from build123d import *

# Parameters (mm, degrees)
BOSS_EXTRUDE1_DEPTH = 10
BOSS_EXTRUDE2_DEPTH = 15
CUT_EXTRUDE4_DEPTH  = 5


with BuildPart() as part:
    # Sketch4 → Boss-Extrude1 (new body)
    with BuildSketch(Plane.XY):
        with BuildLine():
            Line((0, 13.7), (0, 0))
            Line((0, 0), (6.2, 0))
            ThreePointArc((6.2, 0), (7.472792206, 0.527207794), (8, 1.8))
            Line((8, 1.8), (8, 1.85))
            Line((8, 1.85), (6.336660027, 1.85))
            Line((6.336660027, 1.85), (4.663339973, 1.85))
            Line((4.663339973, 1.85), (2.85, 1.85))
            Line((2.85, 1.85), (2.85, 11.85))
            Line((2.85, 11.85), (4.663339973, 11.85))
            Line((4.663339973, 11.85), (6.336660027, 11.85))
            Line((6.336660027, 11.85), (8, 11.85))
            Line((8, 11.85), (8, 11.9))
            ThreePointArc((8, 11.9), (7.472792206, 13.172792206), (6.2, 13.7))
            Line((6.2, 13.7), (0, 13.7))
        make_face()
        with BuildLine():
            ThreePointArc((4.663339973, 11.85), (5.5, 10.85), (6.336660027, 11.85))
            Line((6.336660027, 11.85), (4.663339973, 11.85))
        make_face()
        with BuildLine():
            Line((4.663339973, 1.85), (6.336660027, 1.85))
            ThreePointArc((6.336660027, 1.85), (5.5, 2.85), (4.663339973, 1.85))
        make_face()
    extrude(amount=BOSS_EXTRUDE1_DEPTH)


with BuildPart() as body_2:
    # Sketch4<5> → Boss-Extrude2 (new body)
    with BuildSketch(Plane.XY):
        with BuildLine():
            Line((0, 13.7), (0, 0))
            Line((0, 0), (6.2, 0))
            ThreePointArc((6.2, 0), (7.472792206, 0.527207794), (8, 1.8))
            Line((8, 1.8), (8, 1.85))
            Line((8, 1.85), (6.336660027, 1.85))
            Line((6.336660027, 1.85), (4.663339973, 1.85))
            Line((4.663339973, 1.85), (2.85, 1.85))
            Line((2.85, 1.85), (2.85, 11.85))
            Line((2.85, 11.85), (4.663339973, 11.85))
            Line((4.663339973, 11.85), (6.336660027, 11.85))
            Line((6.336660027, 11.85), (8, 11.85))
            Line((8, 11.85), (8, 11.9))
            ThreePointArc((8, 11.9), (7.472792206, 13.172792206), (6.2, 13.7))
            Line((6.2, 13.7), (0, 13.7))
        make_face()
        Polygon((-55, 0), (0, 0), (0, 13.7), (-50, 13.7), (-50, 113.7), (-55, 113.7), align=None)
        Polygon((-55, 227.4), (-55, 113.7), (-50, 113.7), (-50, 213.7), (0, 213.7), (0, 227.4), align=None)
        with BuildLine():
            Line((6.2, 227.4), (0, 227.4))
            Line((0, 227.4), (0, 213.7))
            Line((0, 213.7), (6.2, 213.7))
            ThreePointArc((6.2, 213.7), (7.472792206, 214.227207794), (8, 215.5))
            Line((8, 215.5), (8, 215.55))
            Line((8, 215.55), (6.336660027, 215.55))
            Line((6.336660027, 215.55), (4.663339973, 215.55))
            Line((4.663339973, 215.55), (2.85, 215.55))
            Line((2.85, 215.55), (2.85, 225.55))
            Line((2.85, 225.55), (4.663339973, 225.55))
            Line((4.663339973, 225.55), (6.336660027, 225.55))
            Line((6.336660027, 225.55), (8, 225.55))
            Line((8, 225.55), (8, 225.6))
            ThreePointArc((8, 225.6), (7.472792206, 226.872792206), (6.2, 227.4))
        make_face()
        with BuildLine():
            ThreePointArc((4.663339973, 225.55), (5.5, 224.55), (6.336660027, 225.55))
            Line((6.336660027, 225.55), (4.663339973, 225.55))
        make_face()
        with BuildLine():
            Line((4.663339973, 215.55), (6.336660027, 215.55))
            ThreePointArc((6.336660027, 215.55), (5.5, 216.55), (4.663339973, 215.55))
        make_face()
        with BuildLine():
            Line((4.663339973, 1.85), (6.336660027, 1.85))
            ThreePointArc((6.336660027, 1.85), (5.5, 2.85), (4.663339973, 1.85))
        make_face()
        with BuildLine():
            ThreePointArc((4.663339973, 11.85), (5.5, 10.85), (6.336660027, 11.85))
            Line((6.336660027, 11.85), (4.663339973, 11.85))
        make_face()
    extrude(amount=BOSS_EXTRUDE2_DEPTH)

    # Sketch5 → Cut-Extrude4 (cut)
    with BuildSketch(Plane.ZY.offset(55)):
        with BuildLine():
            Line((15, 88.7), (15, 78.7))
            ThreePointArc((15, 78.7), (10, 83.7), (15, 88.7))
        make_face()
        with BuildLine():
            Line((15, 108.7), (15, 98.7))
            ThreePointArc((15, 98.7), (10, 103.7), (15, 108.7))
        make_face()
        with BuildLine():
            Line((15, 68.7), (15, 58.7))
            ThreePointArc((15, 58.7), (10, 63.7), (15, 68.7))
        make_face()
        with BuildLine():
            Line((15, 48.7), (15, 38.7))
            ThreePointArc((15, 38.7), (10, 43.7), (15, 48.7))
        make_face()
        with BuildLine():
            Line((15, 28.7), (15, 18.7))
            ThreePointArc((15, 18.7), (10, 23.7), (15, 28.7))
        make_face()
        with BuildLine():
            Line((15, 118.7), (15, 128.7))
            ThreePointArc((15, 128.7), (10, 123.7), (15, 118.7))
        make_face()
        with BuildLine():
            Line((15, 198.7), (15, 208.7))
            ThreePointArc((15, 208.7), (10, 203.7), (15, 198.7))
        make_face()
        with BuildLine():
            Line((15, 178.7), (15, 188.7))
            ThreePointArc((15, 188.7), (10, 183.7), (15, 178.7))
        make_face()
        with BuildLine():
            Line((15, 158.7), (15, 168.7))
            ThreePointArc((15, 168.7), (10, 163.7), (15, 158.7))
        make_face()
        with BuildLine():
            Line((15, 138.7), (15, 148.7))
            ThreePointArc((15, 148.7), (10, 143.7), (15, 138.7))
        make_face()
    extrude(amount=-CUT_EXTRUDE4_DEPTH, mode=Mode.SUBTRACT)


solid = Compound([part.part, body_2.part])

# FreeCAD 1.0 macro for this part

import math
import FreeCAD as App
import Part
import Sketcher
from FreeCAD import Vector

doc = App.newDocument("Part")
body = doc.addObject("PartDesign::Body", "Body")

sketch1 = doc.addObject("Sketcher::SketchObject", "Sketch")
body.addObject(sketch1)
sketch1.AttachmentSupport = (doc.XY_Plane, [""])
sketch1.MapMode = "FlatFace"
sketch1.addGeometry([
    Part.LineSegment(Vector(0, 13.7, 0), Vector(0, 0, 0)),
    Part.LineSegment(Vector(0, 0, 0), Vector(6.2, 0, 0)),
    Part.ArcOfCircle(Part.Circle(Vector(6.2, 1.8, 0), Vector(0, 0, 1), 1.8), math.radians(-90), math.radians(0)),
    Part.LineSegment(Vector(8, 1.8, 0), Vector(8, 1.85, 0)),
    Part.LineSegment(Vector(8, 1.85, 0), Vector(6.34, 1.85, 0)),
    Part.ArcOfCircle(Part.Circle(Vector(5.5, 2, 0), Vector(0, 0, 1), 0.85), math.radians(-10), math.radians(190)),
    Part.LineSegment(Vector(4.66, 1.85, 0), Vector(2.85, 1.85, 0)),
    Part.LineSegment(Vector(2.85, 1.85, 0), Vector(2.85, 11.85, 0)),
    Part.LineSegment(Vector(2.85, 11.85, 0), Vector(4.66, 11.85, 0)),
    Part.ArcOfCircle(Part.Circle(Vector(5.5, 11.7, 0), Vector(0, 0, 1), 0.85), math.radians(170), math.radians(370)),
    Part.LineSegment(Vector(6.34, 11.85, 0), Vector(8, 11.85, 0)),
    Part.LineSegment(Vector(8, 11.85, 0), Vector(8, 11.9, 0)),
    Part.ArcOfCircle(Part.Circle(Vector(6.2, 11.9, 0), Vector(0, 0, 1), 1.8), math.radians(0), math.radians(90)),
    Part.LineSegment(Vector(6.2, 13.7, 0), Vector(0, 13.7, 0)),
], False)
sketch1.addConstraint([
    Sketcher.Constraint("Coincident", 0, 2, 1, 1),
    Sketcher.Constraint("Tangent", 1, 2, 2, 1),
    Sketcher.Constraint("Tangent", 2, 2, 3, 1),
    Sketcher.Constraint("Coincident", 3, 2, 4, 1),
    Sketcher.Constraint("Coincident", 4, 2, 5, 1),
    Sketcher.Constraint("Coincident", 5, 2, 6, 1),
    Sketcher.Constraint("Coincident", 6, 2, 7, 1),
    Sketcher.Constraint("Coincident", 7, 2, 8, 1),
    Sketcher.Constraint("Coincident", 8, 2, 9, 1),
    Sketcher.Constraint("Coincident", 9, 2, 10, 1),
    Sketcher.Constraint("Coincident", 10, 2, 11, 1),
    Sketcher.Constraint("Tangent", 11, 2, 12, 1),
    Sketcher.Constraint("Tangent", 12, 2, 13, 1),
    Sketcher.Constraint("Coincident", 13, 2, 0, 1),
    Sketcher.Constraint("Vertical", 0),
    Sketcher.Constraint("Horizontal", 1),
    Sketcher.Constraint("Vertical", 3),
    Sketcher.Constraint("Horizontal", 4),
    Sketcher.Constraint("Horizontal", 6),
    Sketcher.Constraint("Vertical", 7),
    Sketcher.Constraint("Horizontal", 8),
    Sketcher.Constraint("Horizontal", 10),
    Sketcher.Constraint("Vertical", 11),
    Sketcher.Constraint("Horizontal", 13),
    Sketcher.Constraint("Coincident", 0, 2, -1, 1),
    Sketcher.Constraint("Equal", 5, 9),
    Sketcher.Constraint("Equal", 2, 12),
    Sketcher.Constraint("Horizontal", 4, 2, 5, 2),
    Sketcher.Constraint("Horizontal", 8, 2, 9, 2),
    Sketcher.Constraint("Vertical", 5, 3, 9, 3),
    Sketcher.Constraint("Vertical", 2, 3, 12, 3),
    Sketcher.Constraint("Vertical", 5, 2, 8, 2),
    Sketcher.Constraint("Equal", 3, 11),
    Sketcher.Constraint("Radius", 2, 1.8),
    Sketcher.Constraint("DistanceY", 7, 1, 7, 2, 10.0),
    Sketcher.Constraint("Radius", 5, 0.85),
    Sketcher.Constraint("DistanceX", 1, 1, 1, 2, 6.2),
    Sketcher.Constraint("DistanceY", 0, 2, 0, 1, 13.7),
    Sketcher.Constraint("DistanceY", -1, 1, 5, 3, 2.0),
    Sketcher.Constraint("DistanceX", -1, 1, 5, 3, 5.5),
    Sketcher.Constraint("DistanceX", -1, 1, 6, 2, 2.85),
])
pad1 = doc.addObject("PartDesign::Pad", "Pad")
body.addObject(pad1)
pad1.Profile = sketch1
pad1.Length = 10
body2 = doc.addObject("PartDesign::Body", "Body001")

sketch2 = doc.addObject("Sketcher::SketchObject", "Sketch001")
body2.addObject(sketch2)
sketch2.AttachmentSupport = (doc.getObject("XY_Plane001"), [""])
sketch2.MapMode = "FlatFace"
sketch2.addGeometry([
    Part.ArcOfCircle(Part.Circle(Vector(6.2, 1.8, 0), Vector(0, 0, 1), 1.8), math.radians(-90), math.radians(0)),
    Part.LineSegment(Vector(8, 1.8, 0), Vector(8, 1.85, 0)),
    Part.LineSegment(Vector(8, 1.85, 0), Vector(6.337, 1.85, 0)),
    Part.ArcOfCircle(Part.Circle(Vector(5.5, 2, 0), Vector(0, 0, 1), 0.85), math.radians(-10), math.radians(190)),
    Part.LineSegment(Vector(4.663, 1.85, 0), Vector(2.85, 1.85, 0)),
    Part.LineSegment(Vector(2.85, 1.85, 0), Vector(2.85, 11.85, 0)),
    Part.LineSegment(Vector(2.85, 11.85, 0), Vector(4.663, 11.85, 0)),
    Part.ArcOfCircle(Part.Circle(Vector(5.5, 11.7, 0), Vector(0, 0, 1), 0.85), math.radians(170), math.radians(370)),
    Part.LineSegment(Vector(6.337, 11.85, 0), Vector(8, 11.85, 0)),
    Part.LineSegment(Vector(8, 11.85, 0), Vector(8, 11.9, 0)),
    Part.ArcOfCircle(Part.Circle(Vector(6.2, 11.9, 0), Vector(0, 0, 1), 1.8), math.radians(0), math.radians(90)),
    Part.LineSegment(Vector(6.2, 13.7, 0), Vector(-50, 13.7, 0)),
    Part.LineSegment(Vector(-50, 13.7, 0), Vector(-50, 213.7, 0)),
    Part.LineSegment(Vector(-50, 213.7, 0), Vector(6.2, 213.7, 0)),
    Part.ArcOfCircle(Part.Circle(Vector(6.2, 215.5, 0), Vector(0, 0, 1), 1.8), math.radians(-90), math.radians(0)),
    Part.LineSegment(Vector(8, 215.5, 0), Vector(8, 215.55, 0)),
    Part.LineSegment(Vector(8, 215.55, 0), Vector(6.337, 215.55, 0)),
    Part.ArcOfCircle(Part.Circle(Vector(5.5, 215.7, 0), Vector(0, 0, 1), 0.85), math.radians(-10), math.radians(190)),
    Part.LineSegment(Vector(4.663, 215.55, 0), Vector(2.85, 215.55, 0)),
    Part.LineSegment(Vector(2.85, 215.55, 0), Vector(2.85, 225.55, 0)),
    Part.LineSegment(Vector(2.85, 225.55, 0), Vector(4.663, 225.55, 0)),
    Part.ArcOfCircle(Part.Circle(Vector(5.5, 225.4, 0), Vector(0, 0, 1), 0.85), math.radians(170), math.radians(370)),
    Part.LineSegment(Vector(6.337, 225.55, 0), Vector(8, 225.55, 0)),
    Part.LineSegment(Vector(8, 225.55, 0), Vector(8, 225.6, 0)),
    Part.ArcOfCircle(Part.Circle(Vector(6.2, 225.6, 0), Vector(0, 0, 1), 1.8), math.radians(0), math.radians(90)),
    Part.LineSegment(Vector(6.2, 227.4, 0), Vector(-55, 227.4, 0)),
    Part.LineSegment(Vector(-55, 227.4, 0), Vector(-55, 0, 0)),
    Part.LineSegment(Vector(-55, 0, 0), Vector(6.2, 0, 0)),
], False)
sketch2.addConstraint([
    Sketcher.Constraint("Tangent", 0, 2, 1, 1),
    Sketcher.Constraint("Coincident", 1, 2, 2, 1),
    Sketcher.Constraint("Coincident", 2, 2, 3, 1),
    Sketcher.Constraint("Coincident", 3, 2, 4, 1),
    Sketcher.Constraint("Coincident", 4, 2, 5, 1),
    Sketcher.Constraint("Coincident", 5, 2, 6, 1),
    Sketcher.Constraint("Coincident", 6, 2, 7, 1),
    Sketcher.Constraint("Coincident", 7, 2, 8, 1),
    Sketcher.Constraint("Coincident", 8, 2, 9, 1),
    Sketcher.Constraint("Tangent", 9, 2, 10, 1),
    Sketcher.Constraint("Tangent", 10, 2, 11, 1),
    Sketcher.Constraint("Coincident", 11, 2, 12, 1),
    Sketcher.Constraint("Coincident", 12, 2, 13, 1),
    Sketcher.Constraint("Tangent", 13, 2, 14, 1),
    Sketcher.Constraint("Tangent", 14, 2, 15, 1),
    Sketcher.Constraint("Coincident", 15, 2, 16, 1),
    Sketcher.Constraint("Coincident", 16, 2, 17, 1),
    Sketcher.Constraint("Coincident", 17, 2, 18, 1),
    Sketcher.Constraint("Coincident", 18, 2, 19, 1),
    Sketcher.Constraint("Coincident", 19, 2, 20, 1),
    Sketcher.Constraint("Coincident", 20, 2, 21, 1),
    Sketcher.Constraint("Coincident", 21, 2, 22, 1),
    Sketcher.Constraint("Coincident", 22, 2, 23, 1),
    Sketcher.Constraint("Tangent", 23, 2, 24, 1),
    Sketcher.Constraint("Tangent", 24, 2, 25, 1),
    Sketcher.Constraint("Coincident", 25, 2, 26, 1),
    Sketcher.Constraint("Coincident", 26, 2, 27, 1),
    Sketcher.Constraint("Tangent", 27, 2, 0, 1),
    Sketcher.Constraint("Vertical", 1),
    Sketcher.Constraint("Horizontal", 2),
    Sketcher.Constraint("Horizontal", 4),
    Sketcher.Constraint("Vertical", 5),
    Sketcher.Constraint("Horizontal", 6),
    Sketcher.Constraint("Horizontal", 8),
    Sketcher.Constraint("Vertical", 9),
    Sketcher.Constraint("Horizontal", 11),
    Sketcher.Constraint("Vertical", 12),
    Sketcher.Constraint("Horizontal", 13),
    Sketcher.Constraint("Vertical", 15),
    Sketcher.Constraint("Horizontal", 16),
    Sketcher.Constraint("Horizontal", 18),
    Sketcher.Constraint("Vertical", 19),
    Sketcher.Constraint("Horizontal", 20),
    Sketcher.Constraint("Horizontal", 22),
    Sketcher.Constraint("Vertical", 23),
    Sketcher.Constraint("Horizontal", 25),
    Sketcher.Constraint("Vertical", 26),
    Sketcher.Constraint("Horizontal", 27),
    Sketcher.Constraint("Equal", 3, 7),
    Sketcher.Constraint("Equal", 0, 10),
    Sketcher.Constraint("Equal", 10, 14),
    Sketcher.Constraint("Equal", 7, 17),
    Sketcher.Constraint("Equal", 17, 21),
    Sketcher.Constraint("Equal", 14, 24),
    Sketcher.Constraint("PointOnObject", 26, 2, -1),
    Sketcher.Constraint("Horizontal", 2, 2, 3, 2),
    Sketcher.Constraint("Horizontal", 6, 2, 7, 2),
    Sketcher.Constraint("Horizontal", 16, 2, 17, 2),
    Sketcher.Constraint("Horizontal", 20, 2, 21, 2),
    Sketcher.Constraint("Vertical", 3, 3, 7, 3),
    Sketcher.Constraint("Vertical", 0, 3, 10, 3),
    Sketcher.Constraint("Vertical", 10, 3, 14, 3),
    Sketcher.Constraint("Vertical", 7, 3, 17, 3),
    Sketcher.Constraint("Vertical", 17, 3, 21, 3),
    Sketcher.Constraint("Vertical", 14, 3, 24, 3),
    Sketcher.Constraint("Vertical", 3, 2, 6, 2),
    Sketcher.Constraint("Vertical", 7, 2, 16, 2),
    Sketcher.Constraint("Vertical", 5, 2, 18, 2),
    Sketcher.Constraint("Vertical", 17, 2, 20, 2),
    Sketcher.Constraint("Equal", 1, 9),
    Sketcher.Constraint("Equal", 9, 15),
    Sketcher.Constraint("Equal", 5, 19),
    Sketcher.Constraint("Equal", 15, 23),
    Sketcher.Constraint("Radius", 0, 1.8),
    Sketcher.Constraint("DistanceY", 5, 1, 5, 2, 10.0),
    Sketcher.Constraint("DistanceY", 12, 1, 12, 2, 200.0),
    Sketcher.Constraint("Radius", 3, 0.85),
    Sketcher.Constraint("DistanceX", 11, 2, 11, 1, 56.2),
    Sketcher.Constraint("DistanceX", 25, 2, 25, 1, 61.2),
    Sketcher.Constraint("DistanceY", 26, 2, 26, 1, 227.4),
    Sketcher.Constraint("DistanceY", -1, 1, 3, 3, 2.0),
    Sketcher.Constraint("DistanceX", -1, 1, 0, 2, 8.0),
    Sketcher.Constraint("DistanceX", -1, 1, 3, 3, 5.5),
    Sketcher.Constraint("DistanceX", -1, 1, 4, 2, 2.85),
])
pad2 = doc.addObject("PartDesign::Pad", "Pad001")
body2.addObject(pad2)
pad2.Profile = sketch2
pad2.Length = 15

sketch3 = doc.addObject("Sketcher::SketchObject", "Sketch002")
body2.addObject(sketch3)
sketch3.AttachmentSupport = (doc.getObject("YZ_Plane001"), [""])
sketch3.MapMode = "FlatFace"
sketch3.AttachmentOffset = App.Placement(Vector(0, 0, -55), App.Rotation())
sketch3.addGeometry([
    Part.LineSegment(Vector(79, 15, 0), Vector(89, 15, 0)),
    Part.ArcOfCircle(Part.Circle(Vector(84, 15, 0), Vector(0, 0, 1), 5), math.radians(180), math.radians(360)),
    Part.LineSegment(Vector(99, 15, 0), Vector(109, 15, 0)),
    Part.ArcOfCircle(Part.Circle(Vector(104, 15, 0), Vector(0, 0, 1), 5), math.radians(180), math.radians(360)),
    Part.LineSegment(Vector(59, 15, 0), Vector(69, 15, 0)),
    Part.ArcOfCircle(Part.Circle(Vector(64, 15, 0), Vector(0, 0, 1), 5), math.radians(180), math.radians(360)),
    Part.LineSegment(Vector(39, 15, 0), Vector(49, 15, 0)),
    Part.ArcOfCircle(Part.Circle(Vector(44, 15, 0), Vector(0, 0, 1), 5), math.radians(180), math.radians(360)),
    Part.LineSegment(Vector(19, 15, 0), Vector(29, 15, 0)),
    Part.ArcOfCircle(Part.Circle(Vector(24, 15, 0), Vector(0, 0, 1), 5), math.radians(180), math.radians(360)),
    Part.LineSegment(Vector(119, 15, 0), Vector(129, 15, 0)),
    Part.ArcOfCircle(Part.Circle(Vector(124, 15, 0), Vector(0, 0, 1), 5), math.radians(180), math.radians(360)),
    Part.LineSegment(Vector(199, 15, 0), Vector(209, 15, 0)),
    Part.ArcOfCircle(Part.Circle(Vector(204, 15, 0), Vector(0, 0, 1), 5), math.radians(180), math.radians(360)),
    Part.LineSegment(Vector(179, 15, 0), Vector(189, 15, 0)),
    Part.ArcOfCircle(Part.Circle(Vector(184, 15, 0), Vector(0, 0, 1), 5), math.radians(180), math.radians(360)),
    Part.LineSegment(Vector(159, 15, 0), Vector(169, 15, 0)),
    Part.ArcOfCircle(Part.Circle(Vector(164, 15, 0), Vector(0, 0, 1), 5), math.radians(180), math.radians(360)),
    Part.LineSegment(Vector(139, 15, 0), Vector(149, 15, 0)),
    Part.ArcOfCircle(Part.Circle(Vector(144, 15, 0), Vector(0, 0, 1), 5), math.radians(180), math.radians(360)),
], False)
sketch3.addConstraint([
    Sketcher.Constraint("Coincident", 0, 1, 1, 1),
    Sketcher.Constraint("Coincident", 1, 2, 0, 2),
    Sketcher.Constraint("Coincident", 2, 1, 3, 1),
    Sketcher.Constraint("Coincident", 3, 2, 2, 2),
    Sketcher.Constraint("Coincident", 4, 1, 5, 1),
    Sketcher.Constraint("Coincident", 5, 2, 4, 2),
    Sketcher.Constraint("Coincident", 6, 1, 7, 1),
    Sketcher.Constraint("Coincident", 7, 2, 6, 2),
    Sketcher.Constraint("Coincident", 8, 1, 9, 1),
    Sketcher.Constraint("Coincident", 9, 2, 8, 2),
    Sketcher.Constraint("Coincident", 10, 1, 11, 1),
    Sketcher.Constraint("Coincident", 11, 2, 10, 2),
    Sketcher.Constraint("Coincident", 12, 1, 13, 1),
    Sketcher.Constraint("Coincident", 13, 2, 12, 2),
    Sketcher.Constraint("Coincident", 14, 1, 15, 1),
    Sketcher.Constraint("Coincident", 15, 2, 14, 2),
    Sketcher.Constraint("Coincident", 16, 1, 17, 1),
    Sketcher.Constraint("Coincident", 17, 2, 16, 2),
    Sketcher.Constraint("Coincident", 18, 1, 19, 1),
    Sketcher.Constraint("Coincident", 19, 2, 18, 2),
    Sketcher.Constraint("Horizontal", 0),
    Sketcher.Constraint("Horizontal", 2),
    Sketcher.Constraint("Horizontal", 4),
    Sketcher.Constraint("Horizontal", 6),
    Sketcher.Constraint("Horizontal", 8),
    Sketcher.Constraint("Horizontal", 10),
    Sketcher.Constraint("Horizontal", 12),
    Sketcher.Constraint("Horizontal", 14),
    Sketcher.Constraint("Horizontal", 16),
    Sketcher.Constraint("Horizontal", 18),
    Sketcher.Constraint("Equal", 1, 3),
    Sketcher.Constraint("Equal", 3, 5),
    Sketcher.Constraint("Equal", 5, 7),
    Sketcher.Constraint("Equal", 7, 9),
    Sketcher.Constraint("Equal", 9, 11),
    Sketcher.Constraint("Equal", 11, 13),
    Sketcher.Constraint("Equal", 13, 15),
    Sketcher.Constraint("Equal", 15, 17),
    Sketcher.Constraint("Equal", 17, 19),
    Sketcher.Constraint("Horizontal", 1, 3, 3, 3),
    Sketcher.Constraint("Horizontal", 3, 3, 5, 3),
    Sketcher.Constraint("Horizontal", 5, 3, 7, 3),
    Sketcher.Constraint("Horizontal", 7, 3, 9, 3),
    Sketcher.Constraint("Horizontal", 9, 3, 11, 3),
    Sketcher.Constraint("Horizontal", 11, 3, 13, 3),
    Sketcher.Constraint("Horizontal", 13, 3, 15, 3),
    Sketcher.Constraint("Horizontal", 15, 3, 17, 3),
    Sketcher.Constraint("Horizontal", 17, 3, 19, 3),
    Sketcher.Constraint("Horizontal", 19, 3, 0, 1),
    Sketcher.Constraint("Horizontal", 1, 2, 2, 1),
    Sketcher.Constraint("Horizontal", 3, 2, 4, 1),
    Sketcher.Constraint("Horizontal", 5, 2, 6, 1),
    Sketcher.Constraint("Horizontal", 7, 2, 8, 1),
    Sketcher.Constraint("Horizontal", 9, 2, 10, 1),
    Sketcher.Constraint("Horizontal", 11, 2, 12, 1),
    Sketcher.Constraint("Horizontal", 13, 2, 14, 1),
    Sketcher.Constraint("Horizontal", 15, 2, 16, 1),
    Sketcher.Constraint("Horizontal", 17, 2, 18, 1),
    Sketcher.Constraint("Radius", 1, 5.0),
    Sketcher.Constraint("DistanceY", -1, 1, 1, 3, 15.0),
    Sketcher.Constraint("DistanceX", 1, 3, 3, 3, 20.0),
    Sketcher.Constraint("DistanceX", 5, 3, 1, 3, 20.0),
    Sketcher.Constraint("DistanceX", 7, 3, 5, 3, 20.0),
    Sketcher.Constraint("DistanceX", 9, 3, 7, 3, 20.0),
    Sketcher.Constraint("DistanceX", 3, 3, 11, 3, 20.0),
    Sketcher.Constraint("DistanceX", 11, 3, 13, 3, 80.0),
    Sketcher.Constraint("DistanceX", 15, 3, 13, 3, 20.0),
    Sketcher.Constraint("DistanceX", 17, 3, 15, 3, 20.0),
    Sketcher.Constraint("DistanceX", 11, 3, 19, 3, 20.0),
    Sketcher.Constraint("DistanceX", -1, 1, 1, 3, 83.7),
])
pocket1 = doc.addObject("PartDesign::Pocket", "Pocket")
body2.addObject(pocket1)
pocket1.Profile = sketch3
pocket1.Length = 5
pocket1.Reversed = True

doc.recompute()
